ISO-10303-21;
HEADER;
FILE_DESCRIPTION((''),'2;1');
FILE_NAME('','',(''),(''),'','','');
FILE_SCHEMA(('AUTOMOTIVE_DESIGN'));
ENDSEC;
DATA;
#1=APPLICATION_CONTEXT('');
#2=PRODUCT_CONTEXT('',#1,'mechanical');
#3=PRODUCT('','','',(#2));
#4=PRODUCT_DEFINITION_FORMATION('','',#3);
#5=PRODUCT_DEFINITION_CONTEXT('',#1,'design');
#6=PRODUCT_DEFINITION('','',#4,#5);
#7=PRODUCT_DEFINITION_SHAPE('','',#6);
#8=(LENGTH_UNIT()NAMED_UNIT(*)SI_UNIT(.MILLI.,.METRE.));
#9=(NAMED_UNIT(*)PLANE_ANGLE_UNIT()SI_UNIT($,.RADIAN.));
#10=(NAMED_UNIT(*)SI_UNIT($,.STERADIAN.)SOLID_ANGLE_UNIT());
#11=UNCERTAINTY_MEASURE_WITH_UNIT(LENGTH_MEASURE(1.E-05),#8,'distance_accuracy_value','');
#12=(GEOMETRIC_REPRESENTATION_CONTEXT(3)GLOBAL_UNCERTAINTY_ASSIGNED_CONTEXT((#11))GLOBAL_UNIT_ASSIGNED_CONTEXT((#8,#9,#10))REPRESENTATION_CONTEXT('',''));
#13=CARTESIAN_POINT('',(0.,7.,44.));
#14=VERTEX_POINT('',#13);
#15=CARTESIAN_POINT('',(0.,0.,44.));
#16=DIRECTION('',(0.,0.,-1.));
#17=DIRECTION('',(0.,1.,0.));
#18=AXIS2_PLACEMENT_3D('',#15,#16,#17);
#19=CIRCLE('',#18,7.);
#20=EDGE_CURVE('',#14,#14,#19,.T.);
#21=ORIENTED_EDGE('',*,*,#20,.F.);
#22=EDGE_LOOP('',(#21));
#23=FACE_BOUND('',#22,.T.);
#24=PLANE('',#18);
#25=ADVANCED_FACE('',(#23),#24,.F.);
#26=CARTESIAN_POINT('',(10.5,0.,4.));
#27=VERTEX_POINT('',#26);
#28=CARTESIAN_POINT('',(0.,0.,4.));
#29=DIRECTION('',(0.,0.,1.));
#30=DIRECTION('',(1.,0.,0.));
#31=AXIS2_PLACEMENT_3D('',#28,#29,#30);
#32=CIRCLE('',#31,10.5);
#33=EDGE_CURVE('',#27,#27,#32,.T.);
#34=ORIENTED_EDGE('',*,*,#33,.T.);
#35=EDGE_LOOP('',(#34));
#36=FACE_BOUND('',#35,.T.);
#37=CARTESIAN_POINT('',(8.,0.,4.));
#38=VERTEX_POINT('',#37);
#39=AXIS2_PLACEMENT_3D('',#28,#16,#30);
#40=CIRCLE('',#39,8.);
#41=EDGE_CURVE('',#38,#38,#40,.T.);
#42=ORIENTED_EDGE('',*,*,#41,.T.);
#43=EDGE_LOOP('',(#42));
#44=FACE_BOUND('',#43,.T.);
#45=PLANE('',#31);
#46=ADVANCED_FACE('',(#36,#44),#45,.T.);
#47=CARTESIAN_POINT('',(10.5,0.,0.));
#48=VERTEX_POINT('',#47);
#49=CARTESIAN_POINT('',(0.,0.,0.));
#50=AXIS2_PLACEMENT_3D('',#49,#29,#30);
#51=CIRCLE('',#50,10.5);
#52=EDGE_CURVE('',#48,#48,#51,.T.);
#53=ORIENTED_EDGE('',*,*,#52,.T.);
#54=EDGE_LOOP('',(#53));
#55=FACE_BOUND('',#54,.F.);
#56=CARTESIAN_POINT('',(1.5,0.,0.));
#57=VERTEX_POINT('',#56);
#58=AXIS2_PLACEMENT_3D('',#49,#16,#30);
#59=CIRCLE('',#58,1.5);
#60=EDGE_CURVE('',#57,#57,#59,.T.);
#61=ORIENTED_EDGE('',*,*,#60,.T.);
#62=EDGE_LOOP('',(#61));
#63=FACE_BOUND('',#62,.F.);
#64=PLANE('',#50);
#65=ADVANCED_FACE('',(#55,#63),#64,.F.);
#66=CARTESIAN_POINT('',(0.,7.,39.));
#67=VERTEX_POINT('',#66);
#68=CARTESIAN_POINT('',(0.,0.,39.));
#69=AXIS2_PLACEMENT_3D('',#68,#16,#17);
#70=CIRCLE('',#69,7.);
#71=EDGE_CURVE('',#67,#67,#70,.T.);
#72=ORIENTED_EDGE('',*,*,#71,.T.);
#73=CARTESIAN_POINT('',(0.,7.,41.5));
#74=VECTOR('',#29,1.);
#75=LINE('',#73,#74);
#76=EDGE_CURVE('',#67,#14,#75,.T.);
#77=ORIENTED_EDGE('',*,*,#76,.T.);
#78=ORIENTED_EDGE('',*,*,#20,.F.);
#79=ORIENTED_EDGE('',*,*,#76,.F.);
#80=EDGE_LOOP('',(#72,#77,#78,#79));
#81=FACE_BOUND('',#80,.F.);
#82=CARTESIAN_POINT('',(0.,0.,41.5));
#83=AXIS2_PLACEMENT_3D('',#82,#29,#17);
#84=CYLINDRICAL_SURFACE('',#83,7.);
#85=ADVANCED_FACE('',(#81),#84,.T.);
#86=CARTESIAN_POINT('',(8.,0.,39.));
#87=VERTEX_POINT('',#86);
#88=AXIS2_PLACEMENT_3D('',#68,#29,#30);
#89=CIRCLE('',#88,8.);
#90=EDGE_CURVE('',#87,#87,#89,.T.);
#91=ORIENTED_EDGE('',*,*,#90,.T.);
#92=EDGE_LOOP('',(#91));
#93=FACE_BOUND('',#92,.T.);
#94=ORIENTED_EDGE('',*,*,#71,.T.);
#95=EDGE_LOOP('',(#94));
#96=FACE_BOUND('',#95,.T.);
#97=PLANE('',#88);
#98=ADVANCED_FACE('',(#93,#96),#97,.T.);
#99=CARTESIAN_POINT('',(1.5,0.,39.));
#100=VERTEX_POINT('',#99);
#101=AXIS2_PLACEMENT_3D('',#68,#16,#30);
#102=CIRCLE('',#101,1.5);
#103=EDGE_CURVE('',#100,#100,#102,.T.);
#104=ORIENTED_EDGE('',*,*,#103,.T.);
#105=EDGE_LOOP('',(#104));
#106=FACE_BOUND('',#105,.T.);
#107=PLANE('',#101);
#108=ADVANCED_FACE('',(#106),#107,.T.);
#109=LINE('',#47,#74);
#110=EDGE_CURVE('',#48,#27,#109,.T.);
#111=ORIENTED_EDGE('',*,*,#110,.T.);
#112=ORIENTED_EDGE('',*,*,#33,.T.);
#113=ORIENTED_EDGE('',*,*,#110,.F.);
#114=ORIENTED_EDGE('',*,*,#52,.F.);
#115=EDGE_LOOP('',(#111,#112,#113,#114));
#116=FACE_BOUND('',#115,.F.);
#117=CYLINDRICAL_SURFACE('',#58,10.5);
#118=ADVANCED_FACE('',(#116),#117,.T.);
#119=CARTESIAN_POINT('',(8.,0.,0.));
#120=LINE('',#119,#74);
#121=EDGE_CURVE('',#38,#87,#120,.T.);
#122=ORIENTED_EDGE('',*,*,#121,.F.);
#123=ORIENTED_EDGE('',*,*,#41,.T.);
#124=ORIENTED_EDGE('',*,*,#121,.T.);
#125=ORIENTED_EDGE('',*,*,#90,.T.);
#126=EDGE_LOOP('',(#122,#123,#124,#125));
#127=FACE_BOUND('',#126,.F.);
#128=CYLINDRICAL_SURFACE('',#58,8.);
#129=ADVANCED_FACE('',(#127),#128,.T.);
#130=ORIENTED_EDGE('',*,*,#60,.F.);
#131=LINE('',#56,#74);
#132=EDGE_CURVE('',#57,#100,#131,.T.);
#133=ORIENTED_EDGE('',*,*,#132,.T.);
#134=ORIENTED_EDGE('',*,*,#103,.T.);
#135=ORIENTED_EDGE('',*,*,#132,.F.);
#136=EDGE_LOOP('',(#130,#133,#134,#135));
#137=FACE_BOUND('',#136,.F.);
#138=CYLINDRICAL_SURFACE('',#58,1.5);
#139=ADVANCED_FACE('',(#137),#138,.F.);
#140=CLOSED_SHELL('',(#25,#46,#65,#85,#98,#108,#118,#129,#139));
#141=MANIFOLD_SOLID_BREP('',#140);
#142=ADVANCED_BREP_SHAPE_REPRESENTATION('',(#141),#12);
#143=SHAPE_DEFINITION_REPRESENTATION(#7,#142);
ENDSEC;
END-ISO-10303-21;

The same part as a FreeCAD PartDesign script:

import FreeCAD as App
import Part
import Sketcher

V = App.Vector
Q = App.Units.Quantity

doc = App.newDocument("Part")
body = doc.addObject("PartDesign::Body", "Body")

sketch1 = body.newObject("Sketcher::SketchObject", "Sketch")
sketch1.AttachmentSupport = (doc.getObject("XY_Plane"), [""])
sketch1.MapMode = "FlatFace"
sketch1.addGeometry(Part.Circle(V(0, 0, 0), V(0, 0, 1), 10.5), False)
sketch1.addConstraint([
    Sketcher.Constraint("Coincident", 0, 3, -1, 1),
    Sketcher.Constraint("Diameter", 0, Q("21 mm")),
])
pad1 = body.newObject("PartDesign::Pad", "Pad")
pad1.Profile = sketch1
pad1.Length = 4

sketch2 = body.newObject("Sketcher::SketchObject", "Sketch001")
sketch2.AttachmentSupport = (doc.getObject("XY_Plane"), [""])
sketch2.MapMode = "FlatFace"
sketch2.addGeometry(Part.Circle(V(0, 0, 0), V(0, 0, 1), 8), False)
sketch2.addConstraint([
    Sketcher.Constraint("Coincident", 0, 3, -1, 1),
    Sketcher.Constraint("Diameter", 0, Q("16 mm")),
])
pad2 = body.newObject("PartDesign::Pad", "Pad001")
pad2.Profile = sketch2
pad2.Length = 39

sketch3 = body.newObject("Sketcher::SketchObject", "Sketch002")
sketch3.AttachmentSupport = (doc.getObject("YZ_Plane"), [""])
sketch3.MapMode = "FlatFace"
sketch3.addGeometry([
    Part.LineSegment(V(0, 44, 0), V(0, 39, 0)),
    Part.LineSegment(V(0, 39, 0), V(7, 39, 0)),
    Part.LineSegment(V(7, 39, 0), V(7, 44, 0)),
    Part.LineSegment(V(7, 44, 0), V(0, 44, 0)),
], False)
sketch3.addConstraint([
    Sketcher.Constraint("Coincident", 0, 2, 1, 1),
    Sketcher.Constraint("Coincident", 1, 2, 2, 1),
    Sketcher.Constraint("Coincident", 2, 2, 3, 1),
    Sketcher.Constraint("Coincident", 3, 2, 0, 1),
    Sketcher.Constraint("Vertical", 0),
    Sketcher.Constraint("Horizontal", 1),
    Sketcher.Constraint("Vertical", 2),
    Sketcher.Constraint("Horizontal", 3),
    Sketcher.Constraint("PointOnObject", 0, 2, -2),
    Sketcher.Constraint("DistanceX", 1, 1, 1, 2, Q("7 mm")),
    Sketcher.Constraint("DistanceY", 0, 2, 0, 1, Q("5 mm")),
    Sketcher.Constraint("DistanceY", -1, 1, 0, 2, Q("39 mm")),
])
revolution = body.newObject("PartDesign::Revolution", "Revolution")
revolution.Profile = sketch3
revolution.ReferenceAxis = (sketch3, ["V_Axis"])
revolution.Angle = 360

sketch4 = body.newObject("Sketcher::SketchObject", "Sketch003")
sketch4.AttachmentSupport = (doc.getObject("XY_Plane"), [""])
sketch4.MapMode = "FlatFace"
sketch4.addGeometry(Part.Circle(V(0, 0, 0), V(0, 0, 1), 1.5), False)
sketch4.addConstraint([
    Sketcher.Constraint("Coincident", 0, 3, -1, 1),
    Sketcher.Constraint("Diameter", 0, Q("3 mm")),
])
pocket1 = body.newObject("PartDesign::Pocket", "Pocket")
pocket1.Profile = sketch4
pocket1.Length = 39
pocket1.Reversed = True

doc.recompute()
